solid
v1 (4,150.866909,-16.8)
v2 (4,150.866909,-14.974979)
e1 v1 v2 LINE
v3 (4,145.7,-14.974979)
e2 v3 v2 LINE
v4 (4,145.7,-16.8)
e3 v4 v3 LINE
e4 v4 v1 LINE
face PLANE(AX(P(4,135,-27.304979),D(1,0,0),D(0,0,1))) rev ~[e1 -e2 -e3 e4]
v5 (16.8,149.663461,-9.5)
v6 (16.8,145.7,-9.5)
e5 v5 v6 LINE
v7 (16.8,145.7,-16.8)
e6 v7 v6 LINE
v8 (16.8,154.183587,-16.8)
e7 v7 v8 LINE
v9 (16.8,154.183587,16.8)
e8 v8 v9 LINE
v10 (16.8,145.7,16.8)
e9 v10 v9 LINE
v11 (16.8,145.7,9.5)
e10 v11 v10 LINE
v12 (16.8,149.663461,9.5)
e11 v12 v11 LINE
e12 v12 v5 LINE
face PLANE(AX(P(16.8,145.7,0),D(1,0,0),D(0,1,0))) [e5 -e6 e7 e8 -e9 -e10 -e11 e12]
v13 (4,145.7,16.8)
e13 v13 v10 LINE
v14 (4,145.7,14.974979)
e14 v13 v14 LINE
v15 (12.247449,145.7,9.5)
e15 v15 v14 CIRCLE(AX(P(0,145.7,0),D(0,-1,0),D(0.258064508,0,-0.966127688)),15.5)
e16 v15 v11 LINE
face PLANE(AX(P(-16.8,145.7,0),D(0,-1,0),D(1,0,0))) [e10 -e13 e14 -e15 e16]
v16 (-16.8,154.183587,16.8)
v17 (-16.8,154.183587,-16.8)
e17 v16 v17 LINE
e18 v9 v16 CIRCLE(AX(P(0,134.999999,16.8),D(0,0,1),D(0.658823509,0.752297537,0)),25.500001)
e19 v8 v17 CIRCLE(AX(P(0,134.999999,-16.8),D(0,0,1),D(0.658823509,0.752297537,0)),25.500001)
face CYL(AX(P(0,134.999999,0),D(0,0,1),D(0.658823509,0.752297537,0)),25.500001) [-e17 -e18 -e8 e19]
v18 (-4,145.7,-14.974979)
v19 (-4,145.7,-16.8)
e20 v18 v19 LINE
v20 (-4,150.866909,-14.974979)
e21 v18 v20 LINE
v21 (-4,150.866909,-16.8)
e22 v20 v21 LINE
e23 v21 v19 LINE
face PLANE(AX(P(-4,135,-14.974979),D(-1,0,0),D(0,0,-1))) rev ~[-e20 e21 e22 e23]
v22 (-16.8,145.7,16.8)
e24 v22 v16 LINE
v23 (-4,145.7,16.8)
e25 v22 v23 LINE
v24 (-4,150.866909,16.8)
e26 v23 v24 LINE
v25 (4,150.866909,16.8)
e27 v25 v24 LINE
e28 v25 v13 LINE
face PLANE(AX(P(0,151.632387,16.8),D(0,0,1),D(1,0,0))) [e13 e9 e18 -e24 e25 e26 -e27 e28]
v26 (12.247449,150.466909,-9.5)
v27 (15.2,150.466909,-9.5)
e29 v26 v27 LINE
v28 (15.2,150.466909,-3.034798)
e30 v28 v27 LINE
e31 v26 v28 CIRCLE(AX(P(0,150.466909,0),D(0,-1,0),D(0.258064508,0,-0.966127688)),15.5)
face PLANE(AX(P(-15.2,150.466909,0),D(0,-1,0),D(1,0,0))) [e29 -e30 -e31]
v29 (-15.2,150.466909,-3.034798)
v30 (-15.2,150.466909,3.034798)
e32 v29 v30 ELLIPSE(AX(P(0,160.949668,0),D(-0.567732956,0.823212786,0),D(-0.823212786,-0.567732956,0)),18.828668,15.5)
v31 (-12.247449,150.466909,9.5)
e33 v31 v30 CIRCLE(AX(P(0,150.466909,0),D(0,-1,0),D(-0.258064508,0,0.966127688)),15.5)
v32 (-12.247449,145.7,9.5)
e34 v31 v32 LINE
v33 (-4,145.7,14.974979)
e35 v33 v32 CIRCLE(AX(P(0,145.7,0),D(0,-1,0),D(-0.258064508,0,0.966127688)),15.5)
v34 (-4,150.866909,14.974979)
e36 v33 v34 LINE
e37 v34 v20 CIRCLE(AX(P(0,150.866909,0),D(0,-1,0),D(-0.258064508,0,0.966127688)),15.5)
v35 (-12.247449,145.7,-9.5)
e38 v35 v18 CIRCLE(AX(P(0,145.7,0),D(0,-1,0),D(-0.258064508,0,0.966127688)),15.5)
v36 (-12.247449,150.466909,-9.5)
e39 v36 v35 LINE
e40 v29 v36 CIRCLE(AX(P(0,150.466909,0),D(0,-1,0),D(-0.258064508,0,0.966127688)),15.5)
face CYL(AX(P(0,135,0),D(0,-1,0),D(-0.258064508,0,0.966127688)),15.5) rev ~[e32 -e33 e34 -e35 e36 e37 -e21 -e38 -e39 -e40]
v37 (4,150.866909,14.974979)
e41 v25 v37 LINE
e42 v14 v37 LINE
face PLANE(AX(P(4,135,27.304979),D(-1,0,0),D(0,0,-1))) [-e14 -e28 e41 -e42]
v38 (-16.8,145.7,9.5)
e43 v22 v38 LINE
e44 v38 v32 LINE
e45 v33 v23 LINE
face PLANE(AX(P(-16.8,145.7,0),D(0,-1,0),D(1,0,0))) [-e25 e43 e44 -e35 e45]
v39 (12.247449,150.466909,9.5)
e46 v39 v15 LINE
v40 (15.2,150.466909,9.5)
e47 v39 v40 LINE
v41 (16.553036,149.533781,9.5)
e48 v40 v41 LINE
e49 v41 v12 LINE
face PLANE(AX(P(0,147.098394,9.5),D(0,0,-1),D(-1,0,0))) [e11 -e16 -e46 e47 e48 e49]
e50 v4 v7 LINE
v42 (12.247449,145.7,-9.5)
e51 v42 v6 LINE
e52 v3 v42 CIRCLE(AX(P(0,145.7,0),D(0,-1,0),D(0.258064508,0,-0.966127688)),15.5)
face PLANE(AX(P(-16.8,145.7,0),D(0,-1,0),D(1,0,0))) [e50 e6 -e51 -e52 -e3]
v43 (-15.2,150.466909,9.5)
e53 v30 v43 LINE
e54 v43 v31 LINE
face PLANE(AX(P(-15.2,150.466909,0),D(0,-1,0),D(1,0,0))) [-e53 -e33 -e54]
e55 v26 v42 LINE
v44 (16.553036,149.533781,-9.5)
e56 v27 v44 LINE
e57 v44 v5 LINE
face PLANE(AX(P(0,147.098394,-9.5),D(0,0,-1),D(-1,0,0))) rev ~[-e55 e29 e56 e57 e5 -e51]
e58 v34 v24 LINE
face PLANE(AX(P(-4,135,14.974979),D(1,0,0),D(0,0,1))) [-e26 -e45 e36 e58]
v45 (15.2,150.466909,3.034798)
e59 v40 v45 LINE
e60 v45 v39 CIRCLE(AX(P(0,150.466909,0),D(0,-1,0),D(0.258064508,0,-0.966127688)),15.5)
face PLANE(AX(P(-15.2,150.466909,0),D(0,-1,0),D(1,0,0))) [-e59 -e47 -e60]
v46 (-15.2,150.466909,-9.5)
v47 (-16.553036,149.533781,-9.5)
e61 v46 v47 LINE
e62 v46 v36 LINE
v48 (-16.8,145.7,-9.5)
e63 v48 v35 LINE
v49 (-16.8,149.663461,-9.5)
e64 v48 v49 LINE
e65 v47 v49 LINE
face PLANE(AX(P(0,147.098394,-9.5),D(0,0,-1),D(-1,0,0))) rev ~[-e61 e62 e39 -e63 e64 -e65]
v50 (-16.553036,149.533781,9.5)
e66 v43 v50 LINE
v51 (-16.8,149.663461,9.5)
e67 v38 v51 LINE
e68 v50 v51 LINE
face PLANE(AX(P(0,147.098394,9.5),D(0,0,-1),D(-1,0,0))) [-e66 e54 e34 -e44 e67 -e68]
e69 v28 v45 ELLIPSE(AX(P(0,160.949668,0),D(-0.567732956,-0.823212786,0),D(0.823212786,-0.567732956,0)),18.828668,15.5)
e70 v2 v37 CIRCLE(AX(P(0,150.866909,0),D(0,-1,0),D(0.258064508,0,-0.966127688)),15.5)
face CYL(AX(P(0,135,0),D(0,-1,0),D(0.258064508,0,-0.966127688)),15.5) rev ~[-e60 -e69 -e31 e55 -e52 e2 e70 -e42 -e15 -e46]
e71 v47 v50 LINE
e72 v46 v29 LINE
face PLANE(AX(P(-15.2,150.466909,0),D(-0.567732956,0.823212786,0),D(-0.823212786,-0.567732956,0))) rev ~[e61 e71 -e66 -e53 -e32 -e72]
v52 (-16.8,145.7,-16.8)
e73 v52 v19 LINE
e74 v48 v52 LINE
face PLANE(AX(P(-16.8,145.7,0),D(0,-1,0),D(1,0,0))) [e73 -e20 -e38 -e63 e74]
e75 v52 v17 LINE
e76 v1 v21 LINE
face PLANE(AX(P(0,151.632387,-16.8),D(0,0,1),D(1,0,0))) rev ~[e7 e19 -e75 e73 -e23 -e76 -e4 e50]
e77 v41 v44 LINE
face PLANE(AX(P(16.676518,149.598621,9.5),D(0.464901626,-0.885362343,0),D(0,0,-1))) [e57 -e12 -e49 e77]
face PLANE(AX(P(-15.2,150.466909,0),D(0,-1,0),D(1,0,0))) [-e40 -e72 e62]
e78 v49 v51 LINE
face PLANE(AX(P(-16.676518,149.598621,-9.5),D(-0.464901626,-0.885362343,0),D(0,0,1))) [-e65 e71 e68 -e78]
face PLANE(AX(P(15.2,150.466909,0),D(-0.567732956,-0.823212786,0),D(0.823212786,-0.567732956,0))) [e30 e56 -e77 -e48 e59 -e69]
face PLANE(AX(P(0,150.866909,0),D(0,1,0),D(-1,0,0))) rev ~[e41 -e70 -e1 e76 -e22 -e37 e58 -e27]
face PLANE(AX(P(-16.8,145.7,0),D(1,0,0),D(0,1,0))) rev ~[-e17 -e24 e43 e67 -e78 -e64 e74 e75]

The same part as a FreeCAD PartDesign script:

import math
import FreeCAD as App
import Part
import Sketcher
Q = App.Units.Quantity


def edges_at(feature, points):
    """Names of the edges that pass closest to the given points."""
    edges = feature.Shape.Edges
    near = lambda p: min(range(len(edges)), key=lambda i: edges[i].distToShape(Part.Vertex(*p))[0])
    return sorted({f"Edge{near(p) + 1}" for p in points})

doc = App.newDocument("Part")
params = doc.addObject("Spreadsheet::Sheet", "Params")
for row, (alias, value) in enumerate([
    ("sketch1_radius", "25.500001 mm"),
    ("sketch1_width", "33.6 mm"),
    ("pad1_length", "16.8 mm"),
    ("pad1_length2", "16.8 mm"),
    ("sketch2_width", "2 mm"),
    ("sketch2_width2", "22 mm"),
    ("sketch2_width3", "30.4 mm"),
    ("pocket1_length", "9.5 mm"),
    ("pocket1_length2", "9.5 mm"),
    ("chamfer_size", "0.3 mm"),
    ("sketch3_radius", "15.5 mm"),
    ("sketch3_width", "8 mm"),
    ("sketch3_height", "12.33 mm"),
    ("pocket2_length", "15.866909 mm"),
], start=1):
    params.set(f"A{row}", alias)
    params.set(f"B{row}", "=" + value)
    params.setAlias(f"B{row}", alias)

body = doc.addObject("PartDesign::Body", "Body")

# Sketch on XY plane
sketch1 = doc.addObject("Sketcher::SketchObject", "Sketch")
body.addObject(sketch1)
sketch1.AttachmentSupport = (doc.XY_Plane, [""])
sketch1.MapMode = "FlatFace"
sketch1.addGeometry([
    Part.LineSegment(App.Vector(-17, 11, 0), App.Vector(17, 11, 0)),
    Part.LineSegment(App.Vector(17, 11, 0), App.Vector(17, 19, 0)),
    Part.ArcOfCircle(Part.Circle(App.Vector(0, 0, 0), App.Vector(0, 0, 1), 26), math.radians(49), math.radians(131)),
    Part.LineSegment(App.Vector(-17, 19, 0), App.Vector(-17, 11, 0)),
], False)
sketch1.addConstraint([
    Sketcher.Constraint("Coincident", 0, 2, 1, 1),
    Sketcher.Constraint("Coincident", 1, 2, 2, 1),
    Sketcher.Constraint("Coincident", 2, 2, 3, 1),
    Sketcher.Constraint("Coincident", 3, 2, 0, 1),
    Sketcher.Constraint("Horizontal", 0),
    Sketcher.Constraint("Vertical", 1),
    Sketcher.Constraint("Vertical", 3),
    Sketcher.Constraint("Coincident", 2, 3, -1, 1),
    Sketcher.Constraint("Horizontal", 1, 2, 2, 2),
    Sketcher.Constraint("Radius", 2, Q("25.500001 mm")),
    Sketcher.Constraint("DistanceX", 0, 1, 0, 2, Q("33.6 mm")),
    Sketcher.Constraint("DistanceY", -1, 1, 0, 2, Q("10.7 mm")),
])
sketch1.setExpression("Constraints[9]", "Params.sketch1_radius")
sketch1.setExpression("Constraints[10]", "Params.sketch1_width")
pad1 = doc.addObject("PartDesign::Pad", "Pad")
body.addObject(pad1)
pad1.Profile = sketch1
pad1.Type = "TwoLengths"
pad1.setExpression("Length", "Params.pad1_length")
pad1.setExpression("Length2", "Params.pad1_length2")

# Sketch on XY plane
sketch2 = doc.addObject("Sketcher::SketchObject", "Sketch001")
body.addObject(sketch2)
sketch2.AttachmentSupport = (doc.XY_Plane, [""])
sketch2.MapMode = "FlatFace"
sketch2.addGeometry([
    Part.LineSegment(App.Vector(15.2, 15.466909, 0), App.Vector(-15.2, 15.466909, 0)),  # 0
    Part.LineSegment(App.Vector(-15.2, 15.466909, 0), App.Vector(-21, 11.466909, 0)),  # 1
    Part.LineSegment(App.Vector(-21, 11.466909, 0), App.Vector(-23, 11.466909, 0)),  # 2
    Part.ArcOfCircle(Part.Circle(App.Vector(-0.000205, 0.00009, 0), App.Vector(0, 0, 1), 25.699776), math.radians(153.500908), math.radians(160.764538)),  # 3
    Part.LineSegment(App.Vector(-24.265231, 8.466909, 0), App.Vector(-11, 10.5, 0)),  # 4
    Part.LineSegment(App.Vector(-11, 10.5, 0), App.Vector(11, 10.5, 0)),  # 5
    Part.LineSegment(App.Vector(11, 10.5, 0), App.Vector(24.265231, 8.466909, 0)),  # 6
    Part.ArcOfCircle(Part.Circle(App.Vector(0.000205, 0.00009, 0), App.Vector(0, 0, 1), 25.699776), math.radians(19.235462), math.radians(26.499092)),  # 7
    Part.LineSegment(App.Vector(23, 11.466909, 0), App.Vector(21, 11.466909, 0)),  # 8
    Part.LineSegment(App.Vector(21, 11.466909, 0), App.Vector(15.2, 15.466909, 0)),  # 9
], False)
sketch2.addConstraint([
    Sketcher.Constraint("Coincident", 0, 2, 1, 1),
    Sketcher.Constraint("Coincident", 1, 2, 2, 1),
    Sketcher.Constraint("Coincident", 2, 2, 3, 1),
    Sketcher.Constraint("Coincident", 3, 2, 4, 1),
    Sketcher.Constraint("Coincident", 4, 2, 5, 1),
    Sketcher.Constraint("Coincident", 5, 2, 6, 1),
    Sketcher.Constraint("Coincident", 6, 2, 7, 1),
    Sketcher.Constraint("Coincident", 7, 2, 8, 1),
    Sketcher.Constraint("Coincident", 8, 2, 9, 1),
    Sketcher.Constraint("Coincident", 9, 2, 0, 1),
    Sketcher.Constraint("Horizontal", 0),
    Sketcher.Constraint("Horizontal", 2),
    Sketcher.Constraint("Horizontal", 5),
    Sketcher.Constraint("Horizontal", 8),
    Sketcher.Constraint("Equal", 3, 7),
    Sketcher.Constraint("Symmetric", 3, 3, 7, 3, -2),
    Sketcher.Constraint("Symmetric", 1, 2, 8, 2, -2),
    Sketcher.Constraint("Horizontal", 3, 2, 6, 2),
    Sketcher.Constraint("Equal", 4, 6),
    Sketcher.Constraint("Equal", 1, 9),
    Sketcher.Constraint("DistanceX", 2, 2, 2, 1, Q("2 mm")),
    Sketcher.Constraint("DistanceX", 5, 1, 5, 2, Q("22 mm")),
    Sketcher.Constraint("DistanceX", 0, 2, 0, 1, Q("30.4 mm")),
    Sketcher.Constraint("DistanceX", 1, 2, -1, 1, Q("21 mm")),
    Sketcher.Constraint("DistanceY", 1, 2, 0, 2, Q("4 mm")),
    Sketcher.Constraint("DistanceY", 3, 2, 2, 2, Q("3 mm")),
    Sketcher.Constraint("DistanceY", -1, 1, 4, 2, Q("10.5 mm")),
    Sketcher.Constraint("Radius", 3, Q("25.699776 mm")),
    Sketcher.Constraint("DistanceY", -1, 1, 0, 2, Q("15.466909 mm")),
    Sketcher.Constraint("DistanceX", 3, 2, -1, 1, Q("24.265231 mm")),
])
sketch2.setExpression("Constraints[20]", "Params.sketch2_width")
sketch2.setExpression("Constraints[21]", "Params.sketch2_width2")
sketch2.setExpression("Constraints[22]", "Params.sketch2_width3")
pocket1 = doc.addObject("PartDesign::Pocket", "Pocket")
body.addObject(pocket1)
pocket1.Profile = sketch2
pocket1.Type = "TwoLengths"
pocket1.setExpression("Length", "Params.pocket1_length")
pocket1.setExpression("Length2", "Params.pocket1_length2")
doc.recompute()

chamfer = doc.addObject("PartDesign::Chamfer", "Chamfer")
body.addObject(chamfer)
chamfer.Base = (pocket1, edges_at(pocket1, [(-16.8, 14.363, 0), (16.8, 14.363, 0)]))
chamfer.setExpression("Size", "Params.chamfer_size")

# Sketch on XZ plane
sketch3 = doc.addObject("Sketcher::SketchObject", "Sketch002")
body.addObject(sketch3)
sketch3.AttachmentSupport = (doc.XZ_Plane, [""])
sketch3.MapMode = "FlatFace"
sketch3.addGeometry([
    Part.LineSegment(App.Vector(-4, 27, 0), App.Vector(-4, 15, 0)),  # 0
    Part.ArcOfCircle(Part.Circle(App.Vector(0, 0, 0), App.Vector(0, 0, 1), 15), math.radians(105), math.radians(255)),  # 1
    Part.LineSegment(App.Vector(-4, -15, 0), App.Vector(-4, -27, 0)),  # 2
    Part.LineSegment(App.Vector(-4, -27, 0), App.Vector(4, -27, 0)),  # 3
    Part.LineSegment(App.Vector(4, -27, 0), App.Vector(4, -15, 0)),  # 4
    Part.ArcOfCircle(Part.Circle(App.Vector(0, 0, 0), App.Vector(0, 0, 1), 15), math.radians(-75), math.radians(75)),  # 5
    Part.LineSegment(App.Vector(4, 15, 0), App.Vector(4, 27, 0)),  # 6
    Part.LineSegment(App.Vector(4, 27, 0), App.Vector(-4, 27, 0)),  # 7
], False)
sketch3.addConstraint([
    Sketcher.Constraint("Coincident", 0, 2, 1, 1),
    Sketcher.Constraint("Coincident", 1, 2, 2, 1),
    Sketcher.Constraint("Coincident", 2, 2, 3, 1),
    Sketcher.Constraint("Coincident", 3, 2, 4, 1),
    Sketcher.Constraint("Coincident", 4, 2, 5, 1),
    Sketcher.Constraint("Coincident", 5, 2, 6, 1),
    Sketcher.Constraint("Coincident", 6, 2, 7, 1),
    Sketcher.Constraint("Coincident", 7, 2, 0, 1),
    Sketcher.Constraint("Vertical", 0),
    Sketcher.Constraint("Vertical", 2),
    Sketcher.Constraint("Horizontal", 3),
    Sketcher.Constraint("Vertical", 4),
    Sketcher.Constraint("Vertical", 6),
    Sketcher.Constraint("Horizontal", 7),
    Sketcher.Constraint("Coincident", 1, 3, -1, 1),
    Sketcher.Constraint("Coincident", 5, 3, -1, 1),
    Sketcher.Constraint("Equal", 1, 5),
    Sketcher.Constraint("Symmetric", 2, 2, 6, 2, -1, 1),
    Sketcher.Constraint("Horizontal", 1, 2, 4, 2),
    Sketcher.Constraint("Horizontal", 0, 2, 5, 2),
    Sketcher.Constraint("Radius", 1, Q("15.5 mm")),
    Sketcher.Constraint("DistanceX", 3, 1, 3, 2, Q("8 mm")),
    Sketcher.Constraint("DistanceY", 0, 2, 0, 1, Q("12.33 mm")),
])
sketch3.setExpression("Constraints[20]", "Params.sketch3_radius")
sketch3.setExpression("Constraints[21]", "Params.sketch3_width")
sketch3.setExpression("Constraints[22]", "Params.sketch3_height")
pocket2 = doc.addObject("PartDesign::Pocket", "Pocket001")
body.addObject(pocket2)
pocket2.Profile = sketch3
pocket2.setExpression("Length", "Params.pocket2_length")
body2 = doc.addObject("PartDesign::Body", "Body001")
doc.recompute()

body.Placement = App.Placement(App.Vector(0, 135, 0), App.Rotation(App.Vector(0, 0, 1), 0))
boolean = doc.addObject("PartDesign::Boolean", "Boolean")
body2.addObject(boolean)
boolean.Type = "Fuse"
boolean.addObjects([body])

doc.recompute()
